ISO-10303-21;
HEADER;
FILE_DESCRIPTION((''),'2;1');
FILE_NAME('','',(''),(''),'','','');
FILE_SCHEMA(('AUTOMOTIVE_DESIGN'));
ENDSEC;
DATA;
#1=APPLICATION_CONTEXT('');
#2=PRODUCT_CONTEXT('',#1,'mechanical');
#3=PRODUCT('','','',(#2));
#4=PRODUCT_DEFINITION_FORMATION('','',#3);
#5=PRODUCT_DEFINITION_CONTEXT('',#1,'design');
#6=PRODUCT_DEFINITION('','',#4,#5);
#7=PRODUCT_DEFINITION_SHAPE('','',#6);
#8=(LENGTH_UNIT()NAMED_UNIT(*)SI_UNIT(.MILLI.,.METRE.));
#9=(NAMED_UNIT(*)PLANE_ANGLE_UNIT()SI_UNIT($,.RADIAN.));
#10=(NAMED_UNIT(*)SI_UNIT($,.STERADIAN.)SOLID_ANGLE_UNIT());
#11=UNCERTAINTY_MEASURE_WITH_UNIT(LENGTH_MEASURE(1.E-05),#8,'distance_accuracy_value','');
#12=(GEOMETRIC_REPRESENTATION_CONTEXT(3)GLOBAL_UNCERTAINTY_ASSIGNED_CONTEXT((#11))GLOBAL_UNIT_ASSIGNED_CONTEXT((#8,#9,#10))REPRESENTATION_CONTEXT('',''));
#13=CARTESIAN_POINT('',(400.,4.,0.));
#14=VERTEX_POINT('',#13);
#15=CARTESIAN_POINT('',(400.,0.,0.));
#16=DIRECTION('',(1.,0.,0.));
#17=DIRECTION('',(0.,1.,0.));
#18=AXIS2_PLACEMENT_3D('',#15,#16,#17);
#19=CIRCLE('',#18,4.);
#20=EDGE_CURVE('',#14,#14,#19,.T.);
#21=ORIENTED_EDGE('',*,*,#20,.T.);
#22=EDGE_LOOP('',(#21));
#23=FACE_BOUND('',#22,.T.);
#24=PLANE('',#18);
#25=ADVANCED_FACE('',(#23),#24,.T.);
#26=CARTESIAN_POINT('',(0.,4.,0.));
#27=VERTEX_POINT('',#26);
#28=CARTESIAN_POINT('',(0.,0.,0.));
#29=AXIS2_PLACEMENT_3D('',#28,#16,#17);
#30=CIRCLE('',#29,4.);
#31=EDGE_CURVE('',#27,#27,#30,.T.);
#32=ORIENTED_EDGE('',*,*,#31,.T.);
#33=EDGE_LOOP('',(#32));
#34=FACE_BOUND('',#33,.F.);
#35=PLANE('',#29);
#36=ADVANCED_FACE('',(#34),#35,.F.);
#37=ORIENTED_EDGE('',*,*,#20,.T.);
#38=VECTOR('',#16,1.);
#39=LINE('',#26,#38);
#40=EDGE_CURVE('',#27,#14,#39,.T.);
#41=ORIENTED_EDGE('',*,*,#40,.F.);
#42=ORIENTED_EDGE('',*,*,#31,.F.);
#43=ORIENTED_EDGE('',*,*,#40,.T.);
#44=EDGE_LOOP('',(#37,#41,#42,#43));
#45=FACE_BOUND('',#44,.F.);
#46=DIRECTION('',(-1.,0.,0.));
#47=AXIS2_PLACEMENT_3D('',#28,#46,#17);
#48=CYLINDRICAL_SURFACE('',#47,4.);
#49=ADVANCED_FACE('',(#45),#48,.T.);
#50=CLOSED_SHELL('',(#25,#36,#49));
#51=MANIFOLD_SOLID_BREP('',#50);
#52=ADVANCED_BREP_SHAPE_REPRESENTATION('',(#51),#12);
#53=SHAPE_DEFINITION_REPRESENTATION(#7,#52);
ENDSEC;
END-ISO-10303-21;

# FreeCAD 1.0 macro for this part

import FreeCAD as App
import Part
import Sketcher
from FreeCAD import Vector
Q = App.Units.Quantity

doc = App.newDocument("Part")
params = doc.addObject("Spreadsheet::Sheet", "Params")
for row, (alias, value) in enumerate([
    ("sketch1_diameter", "8 mm"),
    ("pad1_length", "400 mm"),
], start=1):
    params.set(f"A{row}", alias)
    params.set(f"B{row}", "=" + value)
    params.setAlias(f"B{row}", alias)

body = doc.addObject("PartDesign::Body", "Body")

sketch1 = doc.addObject("Sketcher::SketchObject", "Sketch")
body.addObject(sketch1)
sketch1.AttachmentSupport = (doc.YZ_Plane, [""])
sketch1.MapMode = "FlatFace"
sketch1.addGeometry(Part.Circle(Vector(0, 0, 0), Vector(0, 0, 1), 4), False)
sketch1.addConstraint([
    Sketcher.Constraint("Coincident", 0, 3, -1, 1),
    Sketcher.Constraint("Diameter", 0, Q("8 mm")),
])
sketch1.setExpression("Constraints[1]", "Params.sketch1_diameter")
pad1 = doc.addObject("PartDesign::Pad", "Pad")
body.addObject(pad1)
pad1.Profile = sketch1
pad1.setExpression("Length", "Params.pad1_length")

doc.recompute()
